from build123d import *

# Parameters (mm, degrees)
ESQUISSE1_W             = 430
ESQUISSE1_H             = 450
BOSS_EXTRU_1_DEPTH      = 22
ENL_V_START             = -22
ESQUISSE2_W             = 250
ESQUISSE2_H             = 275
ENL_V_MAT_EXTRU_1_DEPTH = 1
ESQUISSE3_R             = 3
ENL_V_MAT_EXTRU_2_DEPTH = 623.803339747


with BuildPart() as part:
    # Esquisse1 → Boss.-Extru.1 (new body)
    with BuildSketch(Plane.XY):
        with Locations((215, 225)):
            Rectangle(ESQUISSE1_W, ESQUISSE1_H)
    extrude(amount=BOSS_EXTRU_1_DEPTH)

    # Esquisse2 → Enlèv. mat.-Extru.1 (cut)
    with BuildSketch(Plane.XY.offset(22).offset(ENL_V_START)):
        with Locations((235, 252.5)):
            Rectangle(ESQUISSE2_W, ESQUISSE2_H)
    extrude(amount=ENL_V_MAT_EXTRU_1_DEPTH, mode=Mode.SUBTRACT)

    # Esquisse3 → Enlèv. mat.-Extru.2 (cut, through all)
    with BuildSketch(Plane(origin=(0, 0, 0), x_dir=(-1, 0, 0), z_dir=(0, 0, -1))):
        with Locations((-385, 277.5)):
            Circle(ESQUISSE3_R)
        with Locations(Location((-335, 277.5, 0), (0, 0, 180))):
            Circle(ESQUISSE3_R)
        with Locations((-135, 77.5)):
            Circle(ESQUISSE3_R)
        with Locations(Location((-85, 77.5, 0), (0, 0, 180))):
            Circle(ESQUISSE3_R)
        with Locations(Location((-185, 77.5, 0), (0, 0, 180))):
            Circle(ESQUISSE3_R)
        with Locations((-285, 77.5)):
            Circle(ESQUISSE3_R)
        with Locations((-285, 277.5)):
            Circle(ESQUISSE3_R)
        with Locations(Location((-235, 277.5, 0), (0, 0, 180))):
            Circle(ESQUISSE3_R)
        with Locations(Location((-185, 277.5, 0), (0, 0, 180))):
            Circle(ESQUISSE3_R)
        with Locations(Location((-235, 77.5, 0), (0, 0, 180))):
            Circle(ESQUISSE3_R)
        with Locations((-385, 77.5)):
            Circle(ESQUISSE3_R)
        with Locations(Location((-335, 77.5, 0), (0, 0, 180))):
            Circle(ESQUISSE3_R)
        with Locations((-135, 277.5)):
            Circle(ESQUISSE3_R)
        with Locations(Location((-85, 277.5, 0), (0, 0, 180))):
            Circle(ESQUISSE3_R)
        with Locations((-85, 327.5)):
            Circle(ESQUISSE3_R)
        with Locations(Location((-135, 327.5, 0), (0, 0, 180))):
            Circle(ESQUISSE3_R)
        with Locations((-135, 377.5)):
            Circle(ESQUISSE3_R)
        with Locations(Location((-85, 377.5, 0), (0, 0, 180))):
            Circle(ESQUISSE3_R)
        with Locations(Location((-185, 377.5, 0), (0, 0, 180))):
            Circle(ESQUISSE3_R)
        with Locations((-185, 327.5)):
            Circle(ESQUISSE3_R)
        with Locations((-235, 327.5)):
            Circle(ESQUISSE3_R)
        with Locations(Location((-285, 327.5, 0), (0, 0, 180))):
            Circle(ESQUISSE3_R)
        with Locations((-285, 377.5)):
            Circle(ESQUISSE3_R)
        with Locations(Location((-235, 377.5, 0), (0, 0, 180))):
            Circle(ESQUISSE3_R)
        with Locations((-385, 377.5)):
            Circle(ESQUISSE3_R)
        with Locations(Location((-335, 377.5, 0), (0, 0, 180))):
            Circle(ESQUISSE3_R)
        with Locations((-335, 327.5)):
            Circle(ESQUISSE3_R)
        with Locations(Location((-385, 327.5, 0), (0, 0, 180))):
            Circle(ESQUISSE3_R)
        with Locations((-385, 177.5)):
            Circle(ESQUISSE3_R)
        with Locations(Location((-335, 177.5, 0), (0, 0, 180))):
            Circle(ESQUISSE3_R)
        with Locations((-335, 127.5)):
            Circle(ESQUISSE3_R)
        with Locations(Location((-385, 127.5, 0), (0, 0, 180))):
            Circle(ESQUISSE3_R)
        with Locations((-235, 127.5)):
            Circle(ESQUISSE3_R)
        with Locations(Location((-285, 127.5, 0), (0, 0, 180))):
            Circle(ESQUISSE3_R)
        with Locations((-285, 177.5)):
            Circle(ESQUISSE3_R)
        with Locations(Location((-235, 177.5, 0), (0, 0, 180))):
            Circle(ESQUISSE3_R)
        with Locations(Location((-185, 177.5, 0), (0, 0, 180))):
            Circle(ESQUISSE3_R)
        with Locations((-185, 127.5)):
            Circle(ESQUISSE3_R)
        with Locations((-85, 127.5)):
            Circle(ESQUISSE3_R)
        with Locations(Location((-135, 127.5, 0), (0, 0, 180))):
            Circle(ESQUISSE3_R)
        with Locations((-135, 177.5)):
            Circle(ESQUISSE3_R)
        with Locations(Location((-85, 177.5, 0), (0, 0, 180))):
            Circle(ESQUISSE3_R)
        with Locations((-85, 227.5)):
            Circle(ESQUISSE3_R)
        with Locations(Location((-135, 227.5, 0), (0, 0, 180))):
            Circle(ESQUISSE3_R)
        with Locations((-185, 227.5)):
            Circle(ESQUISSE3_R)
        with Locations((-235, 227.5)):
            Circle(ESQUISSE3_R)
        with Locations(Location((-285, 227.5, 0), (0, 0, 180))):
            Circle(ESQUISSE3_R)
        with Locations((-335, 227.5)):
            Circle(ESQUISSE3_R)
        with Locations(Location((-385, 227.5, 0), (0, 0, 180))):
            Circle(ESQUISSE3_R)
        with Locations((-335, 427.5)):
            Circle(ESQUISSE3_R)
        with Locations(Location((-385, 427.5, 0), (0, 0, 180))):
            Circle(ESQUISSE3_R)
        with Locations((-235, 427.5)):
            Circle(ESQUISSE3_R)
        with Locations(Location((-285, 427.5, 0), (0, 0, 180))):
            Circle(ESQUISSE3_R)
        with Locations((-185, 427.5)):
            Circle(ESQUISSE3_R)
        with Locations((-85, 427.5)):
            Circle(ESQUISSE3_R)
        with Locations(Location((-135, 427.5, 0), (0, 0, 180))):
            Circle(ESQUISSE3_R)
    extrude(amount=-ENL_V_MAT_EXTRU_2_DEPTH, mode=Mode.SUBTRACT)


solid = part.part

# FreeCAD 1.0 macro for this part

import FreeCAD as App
import Part
import Sketcher
Q = App.Units.Quantity


def add_polygon(sketch, points):
    """Adds a closed chain of lines whose ends are joined by coincident constraints."""
    first, n = sketch.GeometryCount, len(points)
    for a, b in zip(points, points[1:] + points[:1]):
        sketch.addGeometry(Part.LineSegment(App.Vector(*a, 0), App.Vector(*b, 0)), False)
    for i in range(n):
        sketch.addConstraint(Sketcher.Constraint("Coincident", first + i, 2, first + (i + 1) % n, 1))

doc = App.newDocument("Part")
body = doc.addObject("PartDesign::Body", "Body")

# Sketch on XY plane
sketch1 = body.newObject("Sketcher::SketchObject", "Sketch")
sketch1.AttachmentSupport = (doc.getObject("XY_Plane"), [""])
sketch1.MapMode = "FlatFace"
add_polygon(sketch1, [(0, 450), (0, 0), (430, 0), (430, 450)])  # lines 0-3
sketch1.addConstraint([
    Sketcher.Constraint("Vertical", 0),
    Sketcher.Constraint("Horizontal", 1),
    Sketcher.Constraint("Vertical", 2),
    Sketcher.Constraint("Horizontal", 3),
    Sketcher.Constraint("Coincident", 0, 2, -1, 1),
    Sketcher.Constraint("DistanceX", 1, 1, 1, 2, Q("430 mm")),
    Sketcher.Constraint("DistanceY", 0, 2, 0, 1, Q("450 mm")),
])
pad1 = body.newObject("PartDesign::Pad", "Pad")
pad1.Profile = sketch1
pad1.Length = 22

# Sketch on XY plane
sketch2 = body.newObject("Sketcher::SketchObject", "Sketch001")
sketch2.AttachmentSupport = (doc.getObject("XY_Plane"), [""])
sketch2.MapMode = "FlatFace"
add_polygon(sketch2, [(110, 390), (110, 115), (360, 115), (360, 390)])  # lines 0-3
sketch2.addConstraint([
    Sketcher.Constraint("Vertical", 0),
    Sketcher.Constraint("Horizontal", 1),
    Sketcher.Constraint("Vertical", 2),
    Sketcher.Constraint("Horizontal", 3),
    Sketcher.Constraint("DistanceX", 1, 1, 1, 2, Q("250 mm")),
    Sketcher.Constraint("DistanceY", 0, 2, 0, 1, Q("275 mm")),
    Sketcher.Constraint("DistanceX", -1, 1, 0, 2, Q("110 mm")),
    Sketcher.Constraint("DistanceY", -1, 1, 0, 2, Q("115 mm")),
])
pocket1 = body.newObject("PartDesign::Pocket", "Pocket")
pocket1.Profile = sketch2
pocket1.Length = 1
pocket1.Reversed = True

# Sketch on XY plane
sketch3 = body.newObject("Sketcher::SketchObject", "Sketch002")
sketch3.AttachmentSupport = (doc.getObject("XY_Plane"), [""])
sketch3.MapMode = "FlatFace"
sketch3.addGeometry([
    Part.Circle(App.Vector(385, 277.5, 0), App.Vector(0, 0, 1), 3),  # 0
    Part.Circle(App.Vector(335, 277.5, 0), App.Vector(0, 0, 1), 3),  # 1
    Part.Circle(App.Vector(135, 77.5, 0), App.Vector(0, 0, 1), 3),  # 2
    Part.Circle(App.Vector(85, 77.5, 0), App.Vector(0, 0, 1), 3),  # 3
    Part.Circle(App.Vector(185, 77.5, 0), App.Vector(0, 0, 1), 3),  # 4
    Part.Circle(App.Vector(285, 77.5, 0), App.Vector(0, 0, 1), 3),  # 5
    Part.Circle(App.Vector(285, 277.5, 0), App.Vector(0, 0, 1), 3),  # 6
    Part.Circle(App.Vector(235, 277.5, 0), App.Vector(0, 0, 1), 3),  # 7
    Part.Circle(App.Vector(185, 277.5, 0), App.Vector(0, 0, 1), 3),  # 8
    Part.Circle(App.Vector(235, 77.5, 0), App.Vector(0, 0, 1), 3),  # 9
    Part.Circle(App.Vector(385, 77.5, 0), App.Vector(0, 0, 1), 3),  # 10
    Part.Circle(App.Vector(335, 77.5, 0), App.Vector(0, 0, 1), 3),  # 11
    Part.Circle(App.Vector(135, 277.5, 0), App.Vector(0, 0, 1), 3),  # 12
    Part.Circle(App.Vector(85, 277.5, 0), App.Vector(0, 0, 1), 3),  # 13
    Part.Circle(App.Vector(85, 327.5, 0), App.Vector(0, 0, 1), 3),  # 14
    Part.Circle(App.Vector(135, 327.5, 0), App.Vector(0, 0, 1), 3),  # 15
    Part.Circle(App.Vector(135, 377.5, 0), App.Vector(0, 0, 1), 3),  # 16
    Part.Circle(App.Vector(85, 377.5, 0), App.Vector(0, 0, 1), 3),  # 17
    Part.Circle(App.Vector(185, 377.5, 0), App.Vector(0, 0, 1), 3),  # 18
    Part.Circle(App.Vector(185, 327.5, 0), App.Vector(0, 0, 1), 3),  # 19
    Part.Circle(App.Vector(235, 327.5, 0), App.Vector(0, 0, 1), 3),  # 20
    Part.Circle(App.Vector(285, 327.5, 0), App.Vector(0, 0, 1), 3),  # 21
    Part.Circle(App.Vector(285, 377.5, 0), App.Vector(0, 0, 1), 3),  # 22
    Part.Circle(App.Vector(235, 377.5, 0), App.Vector(0, 0, 1), 3),  # 23
    Part.Circle(App.Vector(385, 377.5, 0), App.Vector(0, 0, 1), 3),  # 24
    Part.Circle(App.Vector(335, 377.5, 0), App.Vector(0, 0, 1), 3),  # 25
    Part.Circle(App.Vector(335, 327.5, 0), App.Vector(0, 0, 1), 3),  # 26
    Part.Circle(App.Vector(385, 327.5, 0), App.Vector(0, 0, 1), 3),  # 27
    Part.Circle(App.Vector(385, 177.5, 0), App.Vector(0, 0, 1), 3),  # 28
    Part.Circle(App.Vector(335, 177.5, 0), App.Vector(0, 0, 1), 3),  # 29
    Part.Circle(App.Vector(335, 127.5, 0), App.Vector(0, 0, 1), 3),  # 30
    Part.Circle(App.Vector(385, 127.5, 0), App.Vector(0, 0, 1), 3),  # 31
    Part.Circle(App.Vector(235, 127.5, 0), App.Vector(0, 0, 1), 3),  # 32
    Part.Circle(App.Vector(285, 127.5, 0), App.Vector(0, 0, 1), 3),  # 33
    Part.Circle(App.Vector(285, 177.5, 0), App.Vector(0, 0, 1), 3),  # 34
    Part.Circle(App.Vector(235, 177.5, 0), App.Vector(0, 0, 1), 3),  # 35
    Part.Circle(App.Vector(185, 177.5, 0), App.Vector(0, 0, 1), 3),  # 36
    Part.Circle(App.Vector(185, 127.5, 0), App.Vector(0, 0, 1), 3),  # 37
    Part.Circle(App.Vector(85, 127.5, 0), App.Vector(0, 0, 1), 3),  # 38
    Part.Circle(App.Vector(135, 127.5, 0), App.Vector(0, 0, 1), 3),  # 39
    Part.Circle(App.Vector(135, 177.5, 0), App.Vector(0, 0, 1), 3),  # 40
    Part.Circle(App.Vector(85, 177.5, 0), App.Vector(0, 0, 1), 3),  # 41
    Part.Circle(App.Vector(85, 227.5, 0), App.Vector(0, 0, 1), 3),  # 42
    Part.Circle(App.Vector(135, 227.5, 0), App.Vector(0, 0, 1), 3),  # 43
    Part.Circle(App.Vector(185, 227.5, 0), App.Vector(0, 0, 1), 3),  # 44
    Part.Circle(App.Vector(235, 227.5, 0), App.Vector(0, 0, 1), 3),  # 45
    Part.Circle(App.Vector(285, 227.5, 0), App.Vector(0, 0, 1), 3),  # 46
    Part.Circle(App.Vector(335, 227.5, 0), App.Vector(0, 0, 1), 3),  # 47
    Part.Circle(App.Vector(385, 227.5, 0), App.Vector(0, 0, 1), 3),  # 48
    Part.Circle(App.Vector(335, 427.5, 0), App.Vector(0, 0, 1), 3),  # 49
    Part.Circle(App.Vector(385, 427.5, 0), App.Vector(0, 0, 1), 3),  # 50
    Part.Circle(App.Vector(235, 427.5, 0), App.Vector(0, 0, 1), 3),  # 51
    Part.Circle(App.Vector(285, 427.5, 0), App.Vector(0, 0, 1), 3),  # 52
    Part.Circle(App.Vector(185, 427.5, 0), App.Vector(0, 0, 1), 3),  # 53
    Part.Circle(App.Vector(85, 427.5, 0), App.Vector(0, 0, 1), 3),  # 54
    Part.Circle(App.Vector(135, 427.5, 0), App.Vector(0, 0, 1), 3),  # 55
], False)
sketch3.addConstraint([
    Sketcher.Constraint("Equal", 0, 1),
    Sketcher.Constraint("Equal", 1, 2),
    Sketcher.Constraint("Equal", 2, 3),
    Sketcher.Constraint("Equal", 3, 4),
    Sketcher.Constraint("Equal", 4, 5),
    Sketcher.Constraint("Equal", 5, 6),
    Sketcher.Constraint("Equal", 6, 7),
    Sketcher.Constraint("Equal", 7, 8),
    Sketcher.Constraint("Equal", 8, 9),
    Sketcher.Constraint("Equal", 9, 10),
    Sketcher.Constraint("Equal", 10, 11),
    Sketcher.Constraint("Equal", 11, 12),
    Sketcher.Constraint("Equal", 12, 13),
    Sketcher.Constraint("Equal", 13, 14),
    Sketcher.Constraint("Equal", 14, 15),
    Sketcher.Constraint("Equal", 15, 16),
    Sketcher.Constraint("Equal", 16, 17),
    Sketcher.Constraint("Equal", 17, 18),
    Sketcher.Constraint("Equal", 18, 19),
    Sketcher.Constraint("Equal", 19, 20),
    Sketcher.Constraint("Equal", 20, 21),
    Sketcher.Constraint("Equal", 21, 22),
    Sketcher.Constraint("Equal", 22, 23),
    Sketcher.Constraint("Equal", 23, 24),
    Sketcher.Constraint("Equal", 24, 25),
    Sketcher.Constraint("Equal", 25, 26),
    Sketcher.Constraint("Equal", 26, 27),
    Sketcher.Constraint("Equal", 27, 28),
    Sketcher.Constraint("Equal", 28, 29),
    Sketcher.Constraint("Equal", 29, 30),
    Sketcher.Constraint("Equal", 30, 31),
    Sketcher.Constraint("Equal", 31, 32),
    Sketcher.Constraint("Equal", 32, 33),
    Sketcher.Constraint("Equal", 33, 34),
    Sketcher.Constraint("Equal", 34, 35),
    Sketcher.Constraint("Equal", 35, 36),
    Sketcher.Constraint("Equal", 36, 37),
    Sketcher.Constraint("Equal", 37, 38),
    Sketcher.Constraint("Equal", 38, 39),
    Sketcher.Constraint("Equal", 39, 40),
    Sketcher.Constraint("Equal", 40, 41),
    Sketcher.Constraint("Equal", 41, 42),
    Sketcher.Constraint("Equal", 42, 43),
    Sketcher.Constraint("Equal", 43, 44),
    Sketcher.Constraint("Equal", 44, 45),
    Sketcher.Constraint("Equal", 45, 46),
    Sketcher.Constraint("Equal", 46, 47),
    Sketcher.Constraint("Equal", 47, 48),
    Sketcher.Constraint("Equal", 48, 49),
    Sketcher.Constraint("Equal", 49, 50),
    Sketcher.Constraint("Equal", 50, 51),
    Sketcher.Constraint("Equal", 51, 52),
    Sketcher.Constraint("Equal", 52, 53),
    Sketcher.Constraint("Equal", 53, 54),
    Sketcher.Constraint("Equal", 54, 55),
    Sketcher.Constraint("Horizontal", 0, 3, 1, 3),
    Sketcher.Constraint("Horizontal", 2, 3, 3, 3),
    Sketcher.Constraint("Horizontal", 3, 3, 4, 3),
    Sketcher.Constraint("Horizontal", 4, 3, 5, 3),
    Sketcher.Constraint("Horizontal", 1, 3, 6, 3),
    Sketcher.Constraint("Horizontal", 6, 3, 7, 3),
    Sketcher.Constraint("Horizontal", 7, 3, 8, 3),
    Sketcher.Constraint("Horizontal", 5, 3, 9, 3),
    Sketcher.Constraint("Horizontal", 9, 3, 10, 3),
    Sketcher.Constraint("Horizontal", 10, 3, 11, 3),
    Sketcher.Constraint("Horizontal", 8, 3, 12, 3),
    Sketcher.Constraint("Horizontal", 12, 3, 13, 3),
    Sketcher.Constraint("Horizontal", 14, 3, 15, 3),
    Sketcher.Constraint("Horizontal", 16, 3, 17, 3),
    Sketcher.Constraint("Horizontal", 17, 3, 18, 3),
    Sketcher.Constraint("Horizontal", 15, 3, 19, 3),
    Sketcher.Constraint("Horizontal", 19, 3, 20, 3),
    Sketcher.Constraint("Horizontal", 20, 3, 21, 3),
    Sketcher.Constraint("Horizontal", 18, 3, 22, 3),
    Sketcher.Constraint("Horizontal", 22, 3, 23, 3),
    Sketcher.Constraint("Horizontal", 23, 3, 24, 3),
    Sketcher.Constraint("Horizontal", 24, 3, 25, 3),
    Sketcher.Constraint("Horizontal", 21, 3, 26, 3),
    Sketcher.Constraint("Horizontal", 26, 3, 27, 3),
    Sketcher.Constraint("Horizontal", 28, 3, 29, 3),
    Sketcher.Constraint("Horizontal", 30, 3, 31, 3),
    Sketcher.Constraint("Horizontal", 31, 3, 32, 3),
    Sketcher.Constraint("Horizontal", 32, 3, 33, 3),
    Sketcher.Constraint("Horizontal", 29, 3, 34, 3),
    Sketcher.Constraint("Horizontal", 34, 3, 35, 3),
    Sketcher.Constraint("Horizontal", 35, 3, 36, 3),
    Sketcher.Constraint("Horizontal", 33, 3, 37, 3),
    Sketcher.Constraint("Horizontal", 37, 3, 38, 3),
    Sketcher.Constraint("Horizontal", 38, 3, 39, 3),
    Sketcher.Constraint("Horizontal", 36, 3, 40, 3),
    Sketcher.Constraint("Horizontal", 40, 3, 41, 3),
    Sketcher.Constraint("Horizontal", 42, 3, 43, 3),
    Sketcher.Constraint("Horizontal", 43, 3, 44, 3),
    Sketcher.Constraint("Horizontal", 44, 3, 45, 3),
    Sketcher.Constraint("Horizontal", 45, 3, 46, 3),
    Sketcher.Constraint("Horizontal", 46, 3, 47, 3),
    Sketcher.Constraint("Horizontal", 47, 3, 48, 3),
    Sketcher.Constraint("Horizontal", 49, 3, 50, 3),
    Sketcher.Constraint("Horizontal", 50, 3, 51, 3),
    Sketcher.Constraint("Horizontal", 51, 3, 52, 3),
    Sketcher.Constraint("Horizontal", 52, 3, 53, 3),
    Sketcher.Constraint("Horizontal", 53, 3, 54, 3),
    Sketcher.Constraint("Horizontal", 54, 3, 55, 3),
    Sketcher.Constraint("Vertical", 5, 3, 6, 3),
    Sketcher.Constraint("Vertical", 4, 3, 8, 3),
    Sketcher.Constraint("Vertical", 7, 3, 9, 3),
    Sketcher.Constraint("Vertical", 0, 3, 10, 3),
    Sketcher.Constraint("Vertical", 1, 3, 11, 3),
    Sketcher.Constraint("Vertical", 2, 3, 12, 3),
    Sketcher.Constraint("Vertical", 3, 3, 13, 3),
    Sketcher.Constraint("Vertical", 13, 3, 14, 3),
    Sketcher.Constraint("Vertical", 12, 3, 15, 3),
    Sketcher.Constraint("Vertical", 15, 3, 16, 3),
    Sketcher.Constraint("Vertical", 14, 3, 17, 3),
    Sketcher.Constraint("Vertical", 8, 3, 18, 3),
    Sketcher.Constraint("Vertical", 18, 3, 19, 3),
    Sketcher.Constraint("Vertical", 9, 3, 20, 3),
    Sketcher.Constraint("Vertical", 6, 3, 21, 3),
    Sketcher.Constraint("Vertical", 21, 3, 22, 3),
    Sketcher.Constraint("Vertical", 20, 3, 23, 3),
    Sketcher.Constraint("Vertical", 10, 3, 24, 3),
    Sketcher.Constraint("Vertical", 11, 3, 25, 3),
    Sketcher.Constraint("Vertical", 25, 3, 26, 3),
    Sketcher.Constraint("Vertical", 24, 3, 27, 3),
    Sketcher.Constraint("Vertical", 27, 3, 28, 3),
    Sketcher.Constraint("Vertical", 26, 3, 29, 3),
    Sketcher.Constraint("Vertical", 29, 3, 30, 3),
    Sketcher.Constraint("Vertical", 28, 3, 31, 3),
    Sketcher.Constraint("Vertical", 23, 3, 32, 3),
    Sketcher.Constraint("Vertical", 22, 3, 33, 3),
    Sketcher.Constraint("Vertical", 33, 3, 34, 3),
    Sketcher.Constraint("Vertical", 32, 3, 35, 3),
    Sketcher.Constraint("Vertical", 19, 3, 36, 3),
    Sketcher.Constraint("Vertical", 36, 3, 37, 3),
    Sketcher.Constraint("Vertical", 17, 3, 38, 3),
    Sketcher.Constraint("Vertical", 16, 3, 39, 3),
    Sketcher.Constraint("Vertical", 39, 3, 40, 3),
    Sketcher.Constraint("Vertical", 38, 3, 41, 3),
    Sketcher.Constraint("Vertical", 41, 3, 42, 3),
    Sketcher.Constraint("Vertical", 40, 3, 43, 3),
    Sketcher.Constraint("Vertical", 37, 3, 44, 3),
    Sketcher.Constraint("Vertical", 35, 3, 45, 3),
    Sketcher.Constraint("Vertical", 34, 3, 46, 3),
    Sketcher.Constraint("Vertical", 30, 3, 47, 3),
    Sketcher.Constraint("Vertical", 31, 3, 48, 3),
    Sketcher.Constraint("Vertical", 47, 3, 49, 3),
    Sketcher.Constraint("Vertical", 48, 3, 50, 3),
    Sketcher.Constraint("Vertical", 45, 3, 51, 3),
    Sketcher.Constraint("Vertical", 46, 3, 52, 3),
    Sketcher.Constraint("Vertical", 44, 3, 53, 3),
    Sketcher.Constraint("Vertical", 42, 3, 54, 3),
    Sketcher.Constraint("Vertical", 43, 3, 55, 3),
    Sketcher.Constraint("Diameter", 0, Q("6 mm")),
    Sketcher.Constraint("DistanceX", -1, 1, 0, 3, Q("385 mm")),
    Sketcher.Constraint("DistanceX", -1, 1, 1, 3, Q("335 mm")),
    Sketcher.Constraint("DistanceX", -1, 1, 2, 3, Q("135 mm")),
    Sketcher.Constraint("DistanceX", -1, 1, 3, 3, Q("85 mm")),
    Sketcher.Constraint("DistanceX", -1, 1, 4, 3, Q("185 mm")),
    Sketcher.Constraint("DistanceX", -1, 1, 5, 3, Q("285 mm")),
    Sketcher.Constraint("DistanceX", -1, 1, 7, 3, Q("235 mm")),
    Sketcher.Constraint("DistanceY", 2, 3, 1, 3, Q("200 mm")),
    Sketcher.Constraint("DistanceY", 13, 3, 14, 3, Q("50 mm")),
    Sketcher.Constraint("DistanceY", 15, 3, 16, 3, Q("50 mm")),
    Sketcher.Constraint("DistanceY", 28, 3, 0, 3, Q("100 mm")),
    Sketcher.Constraint("DistanceY", 11, 3, 30, 3, Q("50 mm")),
    Sketcher.Constraint("DistanceY", 42, 3, 13, 3, Q("50 mm")),
    Sketcher.Constraint("DistanceY", 25, 3, 49, 3, Q("50 mm")),
    Sketcher.Constraint("DistanceY", -1, 1, 0, 3, Q("277.5 mm")),
])
pocket2 = body.newObject("PartDesign::Pocket", "Pocket001")
pocket2.Profile = sketch3
pocket2.Type = "ThroughAll"
pocket2.Reversed = True

doc.recompute()
